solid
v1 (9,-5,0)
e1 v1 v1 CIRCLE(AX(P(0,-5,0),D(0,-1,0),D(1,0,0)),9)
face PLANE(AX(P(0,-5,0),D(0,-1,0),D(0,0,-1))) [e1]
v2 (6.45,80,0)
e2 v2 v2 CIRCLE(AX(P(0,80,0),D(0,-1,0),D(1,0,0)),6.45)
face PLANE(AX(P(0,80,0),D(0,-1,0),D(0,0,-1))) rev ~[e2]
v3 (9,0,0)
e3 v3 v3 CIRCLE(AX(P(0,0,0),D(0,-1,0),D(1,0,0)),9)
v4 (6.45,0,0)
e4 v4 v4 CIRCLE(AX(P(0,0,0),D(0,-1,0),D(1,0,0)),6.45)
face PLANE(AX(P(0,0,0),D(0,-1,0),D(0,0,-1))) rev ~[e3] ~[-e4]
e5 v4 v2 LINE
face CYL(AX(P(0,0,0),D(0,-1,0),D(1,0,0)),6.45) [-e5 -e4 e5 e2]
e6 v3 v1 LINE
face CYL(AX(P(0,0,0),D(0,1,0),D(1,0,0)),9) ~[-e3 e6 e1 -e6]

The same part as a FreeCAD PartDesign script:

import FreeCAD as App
import Part
import Sketcher
Q = App.Units.Quantity

doc = App.newDocument("Part")
params = doc.addObject("Spreadsheet::Sheet", "Params")
for row, (alias, value) in enumerate([
    ("sketch1_diameter", "12.9 mm"),
    ("pad1_length", "80 mm"),
    ("sketch2_diameter", "18 mm"),
    ("pad2_length", "5 mm"),
], start=1):
    params.set(f"A{row}", alias)
    params.set(f"B{row}", "=" + value)
    params.setAlias(f"B{row}", alias)

body = doc.addObject("PartDesign::Body", "Body")

sketch1 = body.newObject("Sketcher::SketchObject", "Sketch")
sketch1.AttachmentSupport = (doc.getObject("XZ_Plane"), [""])
sketch1.MapMode = "FlatFace"
sketch1.addGeometry(Part.Circle(App.Vector(0, 0, 0), App.Vector(0, 0, 1), 6.45), False)
sketch1.addConstraint([
    Sketcher.Constraint("Coincident", 0, 3, -1, 1),
    Sketcher.Constraint("Diameter", 0, Q("12.9 mm")),
])
sketch1.setExpression("Constraints[1]", "Params.sketch1_diameter")
pad1 = body.newObject("PartDesign::Pad", "Pad")
pad1.Profile = sketch1
pad1.setExpression("Length", "Params.pad1_length")
pad1.Reversed = True

sketch2 = body.newObject("Sketcher::SketchObject", "Sketch001")
sketch2.AttachmentSupport = (doc.getObject("XZ_Plane"), [""])
sketch2.MapMode = "FlatFace"
sketch2.addGeometry(Part.Circle(App.Vector(0, 0, 0), App.Vector(0, 0, 1), 9), False)
sketch2.addConstraint([
    Sketcher.Constraint("Coincident", 0, 3, -1, 1),
    Sketcher.Constraint("Diameter", 0, Q("18 mm")),
])
sketch2.setExpression("Constraints[1]", "Params.sketch2_diameter")
pad2 = body.newObject("PartDesign::Pad", "Pad001")
pad2.Profile = sketch2
pad2.setExpression("Length", "Params.pad2_length")

doc.recompute()
